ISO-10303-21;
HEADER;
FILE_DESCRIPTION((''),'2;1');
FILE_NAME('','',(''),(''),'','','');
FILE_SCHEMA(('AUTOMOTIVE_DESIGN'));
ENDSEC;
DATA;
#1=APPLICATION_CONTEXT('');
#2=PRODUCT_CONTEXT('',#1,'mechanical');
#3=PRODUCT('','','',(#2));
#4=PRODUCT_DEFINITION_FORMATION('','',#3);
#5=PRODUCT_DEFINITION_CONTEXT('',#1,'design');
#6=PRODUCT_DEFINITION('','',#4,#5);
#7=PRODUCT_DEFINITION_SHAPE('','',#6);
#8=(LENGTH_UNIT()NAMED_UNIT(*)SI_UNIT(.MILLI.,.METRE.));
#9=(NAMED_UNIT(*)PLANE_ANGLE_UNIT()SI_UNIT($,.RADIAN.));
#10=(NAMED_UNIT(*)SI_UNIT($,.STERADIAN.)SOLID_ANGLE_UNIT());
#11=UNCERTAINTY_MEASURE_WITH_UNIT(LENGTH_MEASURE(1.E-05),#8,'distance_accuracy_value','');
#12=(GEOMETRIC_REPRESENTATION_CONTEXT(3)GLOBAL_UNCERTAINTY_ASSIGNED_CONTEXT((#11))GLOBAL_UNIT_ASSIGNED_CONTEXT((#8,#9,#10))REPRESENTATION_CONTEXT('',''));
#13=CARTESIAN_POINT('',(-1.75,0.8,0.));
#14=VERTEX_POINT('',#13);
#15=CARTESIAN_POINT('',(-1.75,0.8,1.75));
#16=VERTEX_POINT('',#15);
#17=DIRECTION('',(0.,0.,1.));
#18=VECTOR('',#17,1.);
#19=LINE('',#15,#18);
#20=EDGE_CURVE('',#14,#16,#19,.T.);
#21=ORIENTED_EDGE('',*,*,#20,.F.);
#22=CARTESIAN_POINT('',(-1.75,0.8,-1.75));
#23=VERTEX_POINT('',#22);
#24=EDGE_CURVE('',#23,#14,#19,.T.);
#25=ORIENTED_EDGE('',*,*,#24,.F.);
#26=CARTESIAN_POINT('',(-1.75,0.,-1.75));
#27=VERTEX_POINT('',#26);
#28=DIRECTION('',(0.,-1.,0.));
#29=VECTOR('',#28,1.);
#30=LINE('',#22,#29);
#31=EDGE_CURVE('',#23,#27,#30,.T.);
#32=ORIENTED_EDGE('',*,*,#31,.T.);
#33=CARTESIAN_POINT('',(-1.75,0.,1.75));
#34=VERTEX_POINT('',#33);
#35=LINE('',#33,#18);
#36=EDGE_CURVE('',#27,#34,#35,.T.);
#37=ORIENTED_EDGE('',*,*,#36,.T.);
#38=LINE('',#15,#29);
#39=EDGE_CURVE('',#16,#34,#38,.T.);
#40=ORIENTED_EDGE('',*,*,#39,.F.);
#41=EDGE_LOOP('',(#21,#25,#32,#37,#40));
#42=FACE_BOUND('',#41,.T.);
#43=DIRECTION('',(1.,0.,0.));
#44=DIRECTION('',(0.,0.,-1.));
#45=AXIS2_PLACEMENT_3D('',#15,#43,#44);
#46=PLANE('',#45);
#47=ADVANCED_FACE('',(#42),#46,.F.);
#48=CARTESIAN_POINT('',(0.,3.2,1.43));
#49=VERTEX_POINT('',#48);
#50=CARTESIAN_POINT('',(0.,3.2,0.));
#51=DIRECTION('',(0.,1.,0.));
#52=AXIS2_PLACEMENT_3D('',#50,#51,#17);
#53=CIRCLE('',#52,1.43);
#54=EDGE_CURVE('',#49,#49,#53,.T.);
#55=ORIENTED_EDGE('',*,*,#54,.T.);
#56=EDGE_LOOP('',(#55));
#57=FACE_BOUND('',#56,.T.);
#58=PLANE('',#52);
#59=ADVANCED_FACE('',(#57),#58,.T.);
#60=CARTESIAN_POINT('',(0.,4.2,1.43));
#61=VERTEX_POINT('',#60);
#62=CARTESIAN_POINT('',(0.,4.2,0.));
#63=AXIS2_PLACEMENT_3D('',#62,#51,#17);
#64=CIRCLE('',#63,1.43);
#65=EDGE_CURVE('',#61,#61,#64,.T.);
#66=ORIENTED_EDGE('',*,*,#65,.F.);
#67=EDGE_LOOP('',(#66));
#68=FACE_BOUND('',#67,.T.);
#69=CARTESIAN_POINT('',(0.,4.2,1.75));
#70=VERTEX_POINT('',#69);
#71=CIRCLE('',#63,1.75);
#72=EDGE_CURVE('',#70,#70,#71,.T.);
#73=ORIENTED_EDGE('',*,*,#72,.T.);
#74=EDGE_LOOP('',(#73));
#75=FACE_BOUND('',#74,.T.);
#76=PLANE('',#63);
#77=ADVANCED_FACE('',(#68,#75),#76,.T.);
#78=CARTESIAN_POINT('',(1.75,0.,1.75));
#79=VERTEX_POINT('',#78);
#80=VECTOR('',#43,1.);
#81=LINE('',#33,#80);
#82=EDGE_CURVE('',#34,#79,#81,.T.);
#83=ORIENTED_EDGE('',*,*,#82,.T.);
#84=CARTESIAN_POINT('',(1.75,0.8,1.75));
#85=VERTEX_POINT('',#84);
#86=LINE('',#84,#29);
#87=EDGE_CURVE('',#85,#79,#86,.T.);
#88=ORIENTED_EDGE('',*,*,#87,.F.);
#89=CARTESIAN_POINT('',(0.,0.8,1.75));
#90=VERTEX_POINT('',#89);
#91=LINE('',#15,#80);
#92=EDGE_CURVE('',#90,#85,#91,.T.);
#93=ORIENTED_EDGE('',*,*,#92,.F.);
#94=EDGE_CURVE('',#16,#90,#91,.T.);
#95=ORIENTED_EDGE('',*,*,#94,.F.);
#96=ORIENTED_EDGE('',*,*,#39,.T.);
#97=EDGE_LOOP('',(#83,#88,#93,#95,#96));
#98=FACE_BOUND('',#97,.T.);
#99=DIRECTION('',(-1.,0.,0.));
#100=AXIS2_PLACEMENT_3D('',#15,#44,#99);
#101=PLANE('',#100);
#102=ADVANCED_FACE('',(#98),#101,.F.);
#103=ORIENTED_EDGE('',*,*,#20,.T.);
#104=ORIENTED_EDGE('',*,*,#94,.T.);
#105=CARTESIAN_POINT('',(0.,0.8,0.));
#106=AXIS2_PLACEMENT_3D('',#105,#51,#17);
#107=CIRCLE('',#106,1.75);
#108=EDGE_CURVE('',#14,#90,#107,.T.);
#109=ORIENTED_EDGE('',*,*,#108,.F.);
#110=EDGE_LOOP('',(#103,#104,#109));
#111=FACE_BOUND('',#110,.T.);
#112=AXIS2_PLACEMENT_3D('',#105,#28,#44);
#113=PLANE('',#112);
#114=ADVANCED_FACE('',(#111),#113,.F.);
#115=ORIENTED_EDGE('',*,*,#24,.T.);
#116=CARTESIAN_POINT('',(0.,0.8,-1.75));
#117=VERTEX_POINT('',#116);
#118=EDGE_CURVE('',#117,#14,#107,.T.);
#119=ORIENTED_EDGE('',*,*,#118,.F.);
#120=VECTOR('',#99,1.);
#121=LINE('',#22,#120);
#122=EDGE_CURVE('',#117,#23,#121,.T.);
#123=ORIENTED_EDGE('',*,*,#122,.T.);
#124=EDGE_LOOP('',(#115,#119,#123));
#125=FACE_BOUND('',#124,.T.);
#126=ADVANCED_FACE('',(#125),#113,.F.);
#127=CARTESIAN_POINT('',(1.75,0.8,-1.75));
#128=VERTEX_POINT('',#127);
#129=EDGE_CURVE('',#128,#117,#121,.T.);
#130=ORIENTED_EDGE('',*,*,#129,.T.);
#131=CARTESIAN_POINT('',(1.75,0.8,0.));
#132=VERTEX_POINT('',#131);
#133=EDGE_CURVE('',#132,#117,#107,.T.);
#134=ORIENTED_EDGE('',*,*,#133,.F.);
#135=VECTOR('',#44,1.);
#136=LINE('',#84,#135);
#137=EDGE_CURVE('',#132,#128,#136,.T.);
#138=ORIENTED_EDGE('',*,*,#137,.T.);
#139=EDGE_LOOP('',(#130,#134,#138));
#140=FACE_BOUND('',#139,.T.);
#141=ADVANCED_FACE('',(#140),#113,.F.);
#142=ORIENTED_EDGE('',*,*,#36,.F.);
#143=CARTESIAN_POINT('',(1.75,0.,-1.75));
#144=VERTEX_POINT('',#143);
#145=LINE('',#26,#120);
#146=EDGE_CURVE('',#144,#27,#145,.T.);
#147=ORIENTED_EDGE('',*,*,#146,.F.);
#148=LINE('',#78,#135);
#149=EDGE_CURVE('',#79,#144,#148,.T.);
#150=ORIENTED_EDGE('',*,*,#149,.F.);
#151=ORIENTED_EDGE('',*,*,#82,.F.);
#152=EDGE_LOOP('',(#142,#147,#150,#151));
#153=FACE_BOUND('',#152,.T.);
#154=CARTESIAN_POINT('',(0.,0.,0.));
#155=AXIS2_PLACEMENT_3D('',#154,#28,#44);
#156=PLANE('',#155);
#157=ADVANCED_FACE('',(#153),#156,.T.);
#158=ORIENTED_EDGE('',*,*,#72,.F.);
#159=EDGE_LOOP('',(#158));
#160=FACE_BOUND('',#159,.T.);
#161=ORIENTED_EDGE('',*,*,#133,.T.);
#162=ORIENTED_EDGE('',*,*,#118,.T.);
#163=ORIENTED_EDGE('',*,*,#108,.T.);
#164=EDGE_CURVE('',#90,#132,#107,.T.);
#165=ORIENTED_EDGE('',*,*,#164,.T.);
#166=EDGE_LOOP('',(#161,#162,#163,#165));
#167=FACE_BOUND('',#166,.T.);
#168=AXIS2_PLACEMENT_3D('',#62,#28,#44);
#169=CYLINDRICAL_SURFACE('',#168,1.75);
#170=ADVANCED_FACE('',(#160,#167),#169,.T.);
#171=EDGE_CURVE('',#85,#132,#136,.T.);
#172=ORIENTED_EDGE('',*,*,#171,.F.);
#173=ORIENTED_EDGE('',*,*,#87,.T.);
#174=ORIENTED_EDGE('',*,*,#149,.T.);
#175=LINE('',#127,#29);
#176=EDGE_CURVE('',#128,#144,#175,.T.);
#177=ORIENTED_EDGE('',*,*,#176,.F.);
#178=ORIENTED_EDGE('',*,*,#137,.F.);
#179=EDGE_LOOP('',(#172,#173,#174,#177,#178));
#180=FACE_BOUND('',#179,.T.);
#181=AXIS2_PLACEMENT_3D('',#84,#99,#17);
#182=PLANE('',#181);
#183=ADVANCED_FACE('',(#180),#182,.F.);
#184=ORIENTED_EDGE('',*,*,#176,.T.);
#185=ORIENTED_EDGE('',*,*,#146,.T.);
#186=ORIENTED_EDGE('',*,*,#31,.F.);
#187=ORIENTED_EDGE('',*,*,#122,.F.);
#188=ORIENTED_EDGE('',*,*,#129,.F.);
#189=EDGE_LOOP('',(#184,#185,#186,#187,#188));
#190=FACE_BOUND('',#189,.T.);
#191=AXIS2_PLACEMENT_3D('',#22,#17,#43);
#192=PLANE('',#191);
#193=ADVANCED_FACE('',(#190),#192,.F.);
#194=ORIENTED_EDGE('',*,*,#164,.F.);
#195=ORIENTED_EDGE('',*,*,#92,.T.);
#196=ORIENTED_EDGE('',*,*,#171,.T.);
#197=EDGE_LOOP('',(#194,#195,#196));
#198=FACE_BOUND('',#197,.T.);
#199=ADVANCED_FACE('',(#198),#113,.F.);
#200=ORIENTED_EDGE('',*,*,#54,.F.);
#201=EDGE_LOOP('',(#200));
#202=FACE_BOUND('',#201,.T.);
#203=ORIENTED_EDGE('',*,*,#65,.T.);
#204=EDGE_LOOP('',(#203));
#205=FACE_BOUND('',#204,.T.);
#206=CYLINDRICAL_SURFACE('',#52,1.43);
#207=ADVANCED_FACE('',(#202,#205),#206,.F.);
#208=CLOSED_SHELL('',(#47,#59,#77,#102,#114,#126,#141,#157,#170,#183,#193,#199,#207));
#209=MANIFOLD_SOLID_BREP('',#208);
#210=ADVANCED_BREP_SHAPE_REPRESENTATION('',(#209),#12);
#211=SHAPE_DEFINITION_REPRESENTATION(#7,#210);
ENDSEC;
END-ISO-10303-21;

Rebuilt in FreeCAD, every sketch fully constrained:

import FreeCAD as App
import Part
import Sketcher
Q = App.Units.Quantity


def add_polygon(sketch, points):
    """Adds a closed chain of lines whose ends are joined by coincident constraints."""
    first, n = sketch.GeometryCount, len(points)
    for a, b in zip(points, points[1:] + points[:1]):
        sketch.addGeometry(Part.LineSegment(App.Vector(*a, 0), App.Vector(*b, 0)), False)
    for i in range(n):
        sketch.addConstraint(Sketcher.Constraint("Coincident", first + i, 2, first + (i + 1) % n, 1))

doc = App.newDocument("Part")
body = doc.addObject("PartDesign::Body", "Body")

sketch1 = doc.addObject("Sketcher::SketchObject", "Sketch")
body.addObject(sketch1)
sketch1.AttachmentSupport = (doc.XZ_Plane, [""])
sketch1.MapMode = "FlatFace"
add_polygon(sketch1, [(-1.8, -1.8), (-1.8, 1.8), (1.8, 1.8), (1.8, -1.8)])
sketch1.addConstraint(Sketcher.Constraint("Vertical", 0))
sketch1.addConstraint(Sketcher.Constraint("Horizontal", 1))
sketch1.addConstraint(Sketcher.Constraint("Vertical", 2))
sketch1.addConstraint(Sketcher.Constraint("Horizontal", 3))
sketch1.addConstraint(Sketcher.Constraint("Symmetric", 0, 2, 2, 2, -1, 1))
sketch1.addConstraint(Sketcher.Constraint("Equal", 3, 0))
sketch1.addConstraint(Sketcher.Constraint("DistanceX", 1, 1, 1, 2, Q("3.5 mm")))
pad1 = doc.addObject("PartDesign::Pad", "Pad")
body.addObject(pad1)
pad1.Profile = sketch1
pad1.Length = 0.8
pad1.Reversed = True

sketch2 = doc.addObject("Sketcher::SketchObject", "Sketch001")
body.addObject(sketch2)
sketch2.AttachmentSupport = (doc.XZ_Plane, [""])
sketch2.MapMode = "FlatFace"
sketch2.AttachmentOffset = App.Placement(App.Vector(0, 0, -0.8), App.Rotation())
sketch2.addGeometry(Part.Circle(App.Vector(0, 0, 0), App.Vector(0, 0, 1), 1.8), False)
sketch2.addConstraint(Sketcher.Constraint("Coincident", 0, 3, -1, 1))
sketch2.addConstraint(Sketcher.Constraint("Diameter", 0, Q("3.5 mm")))
pad2 = doc.addObject("PartDesign::Pad", "Pad001")
body.addObject(pad2)
pad2.Profile = sketch2
pad2.Length = 3.4
pad2.Reversed = True

sketch3 = doc.addObject("Sketcher::SketchObject", "Sketch002")
body.addObject(sketch3)
sketch3.AttachmentSupport = (doc.XZ_Plane, [""])
sketch3.MapMode = "FlatFace"
sketch3.AttachmentOffset = App.Placement(App.Vector(0, 0, -4.2), App.Rotation())
sketch3.addGeometry(Part.Circle(App.Vector(0, 0, 0), App.Vector(0, 0, 1), 1.4), False)
sketch3.addConstraint(Sketcher.Constraint("Coincident", 0, 3, -1, 1))
sketch3.addConstraint(Sketcher.Constraint("Diameter", 0, Q("2.86 mm")))
pocket1 = doc.addObject("PartDesign::Pocket", "Pocket")
body.addObject(pocket1)
pocket1.Profile = sketch3
pocket1.Length = 1
pocket1.Reversed = True

doc.recompute()
